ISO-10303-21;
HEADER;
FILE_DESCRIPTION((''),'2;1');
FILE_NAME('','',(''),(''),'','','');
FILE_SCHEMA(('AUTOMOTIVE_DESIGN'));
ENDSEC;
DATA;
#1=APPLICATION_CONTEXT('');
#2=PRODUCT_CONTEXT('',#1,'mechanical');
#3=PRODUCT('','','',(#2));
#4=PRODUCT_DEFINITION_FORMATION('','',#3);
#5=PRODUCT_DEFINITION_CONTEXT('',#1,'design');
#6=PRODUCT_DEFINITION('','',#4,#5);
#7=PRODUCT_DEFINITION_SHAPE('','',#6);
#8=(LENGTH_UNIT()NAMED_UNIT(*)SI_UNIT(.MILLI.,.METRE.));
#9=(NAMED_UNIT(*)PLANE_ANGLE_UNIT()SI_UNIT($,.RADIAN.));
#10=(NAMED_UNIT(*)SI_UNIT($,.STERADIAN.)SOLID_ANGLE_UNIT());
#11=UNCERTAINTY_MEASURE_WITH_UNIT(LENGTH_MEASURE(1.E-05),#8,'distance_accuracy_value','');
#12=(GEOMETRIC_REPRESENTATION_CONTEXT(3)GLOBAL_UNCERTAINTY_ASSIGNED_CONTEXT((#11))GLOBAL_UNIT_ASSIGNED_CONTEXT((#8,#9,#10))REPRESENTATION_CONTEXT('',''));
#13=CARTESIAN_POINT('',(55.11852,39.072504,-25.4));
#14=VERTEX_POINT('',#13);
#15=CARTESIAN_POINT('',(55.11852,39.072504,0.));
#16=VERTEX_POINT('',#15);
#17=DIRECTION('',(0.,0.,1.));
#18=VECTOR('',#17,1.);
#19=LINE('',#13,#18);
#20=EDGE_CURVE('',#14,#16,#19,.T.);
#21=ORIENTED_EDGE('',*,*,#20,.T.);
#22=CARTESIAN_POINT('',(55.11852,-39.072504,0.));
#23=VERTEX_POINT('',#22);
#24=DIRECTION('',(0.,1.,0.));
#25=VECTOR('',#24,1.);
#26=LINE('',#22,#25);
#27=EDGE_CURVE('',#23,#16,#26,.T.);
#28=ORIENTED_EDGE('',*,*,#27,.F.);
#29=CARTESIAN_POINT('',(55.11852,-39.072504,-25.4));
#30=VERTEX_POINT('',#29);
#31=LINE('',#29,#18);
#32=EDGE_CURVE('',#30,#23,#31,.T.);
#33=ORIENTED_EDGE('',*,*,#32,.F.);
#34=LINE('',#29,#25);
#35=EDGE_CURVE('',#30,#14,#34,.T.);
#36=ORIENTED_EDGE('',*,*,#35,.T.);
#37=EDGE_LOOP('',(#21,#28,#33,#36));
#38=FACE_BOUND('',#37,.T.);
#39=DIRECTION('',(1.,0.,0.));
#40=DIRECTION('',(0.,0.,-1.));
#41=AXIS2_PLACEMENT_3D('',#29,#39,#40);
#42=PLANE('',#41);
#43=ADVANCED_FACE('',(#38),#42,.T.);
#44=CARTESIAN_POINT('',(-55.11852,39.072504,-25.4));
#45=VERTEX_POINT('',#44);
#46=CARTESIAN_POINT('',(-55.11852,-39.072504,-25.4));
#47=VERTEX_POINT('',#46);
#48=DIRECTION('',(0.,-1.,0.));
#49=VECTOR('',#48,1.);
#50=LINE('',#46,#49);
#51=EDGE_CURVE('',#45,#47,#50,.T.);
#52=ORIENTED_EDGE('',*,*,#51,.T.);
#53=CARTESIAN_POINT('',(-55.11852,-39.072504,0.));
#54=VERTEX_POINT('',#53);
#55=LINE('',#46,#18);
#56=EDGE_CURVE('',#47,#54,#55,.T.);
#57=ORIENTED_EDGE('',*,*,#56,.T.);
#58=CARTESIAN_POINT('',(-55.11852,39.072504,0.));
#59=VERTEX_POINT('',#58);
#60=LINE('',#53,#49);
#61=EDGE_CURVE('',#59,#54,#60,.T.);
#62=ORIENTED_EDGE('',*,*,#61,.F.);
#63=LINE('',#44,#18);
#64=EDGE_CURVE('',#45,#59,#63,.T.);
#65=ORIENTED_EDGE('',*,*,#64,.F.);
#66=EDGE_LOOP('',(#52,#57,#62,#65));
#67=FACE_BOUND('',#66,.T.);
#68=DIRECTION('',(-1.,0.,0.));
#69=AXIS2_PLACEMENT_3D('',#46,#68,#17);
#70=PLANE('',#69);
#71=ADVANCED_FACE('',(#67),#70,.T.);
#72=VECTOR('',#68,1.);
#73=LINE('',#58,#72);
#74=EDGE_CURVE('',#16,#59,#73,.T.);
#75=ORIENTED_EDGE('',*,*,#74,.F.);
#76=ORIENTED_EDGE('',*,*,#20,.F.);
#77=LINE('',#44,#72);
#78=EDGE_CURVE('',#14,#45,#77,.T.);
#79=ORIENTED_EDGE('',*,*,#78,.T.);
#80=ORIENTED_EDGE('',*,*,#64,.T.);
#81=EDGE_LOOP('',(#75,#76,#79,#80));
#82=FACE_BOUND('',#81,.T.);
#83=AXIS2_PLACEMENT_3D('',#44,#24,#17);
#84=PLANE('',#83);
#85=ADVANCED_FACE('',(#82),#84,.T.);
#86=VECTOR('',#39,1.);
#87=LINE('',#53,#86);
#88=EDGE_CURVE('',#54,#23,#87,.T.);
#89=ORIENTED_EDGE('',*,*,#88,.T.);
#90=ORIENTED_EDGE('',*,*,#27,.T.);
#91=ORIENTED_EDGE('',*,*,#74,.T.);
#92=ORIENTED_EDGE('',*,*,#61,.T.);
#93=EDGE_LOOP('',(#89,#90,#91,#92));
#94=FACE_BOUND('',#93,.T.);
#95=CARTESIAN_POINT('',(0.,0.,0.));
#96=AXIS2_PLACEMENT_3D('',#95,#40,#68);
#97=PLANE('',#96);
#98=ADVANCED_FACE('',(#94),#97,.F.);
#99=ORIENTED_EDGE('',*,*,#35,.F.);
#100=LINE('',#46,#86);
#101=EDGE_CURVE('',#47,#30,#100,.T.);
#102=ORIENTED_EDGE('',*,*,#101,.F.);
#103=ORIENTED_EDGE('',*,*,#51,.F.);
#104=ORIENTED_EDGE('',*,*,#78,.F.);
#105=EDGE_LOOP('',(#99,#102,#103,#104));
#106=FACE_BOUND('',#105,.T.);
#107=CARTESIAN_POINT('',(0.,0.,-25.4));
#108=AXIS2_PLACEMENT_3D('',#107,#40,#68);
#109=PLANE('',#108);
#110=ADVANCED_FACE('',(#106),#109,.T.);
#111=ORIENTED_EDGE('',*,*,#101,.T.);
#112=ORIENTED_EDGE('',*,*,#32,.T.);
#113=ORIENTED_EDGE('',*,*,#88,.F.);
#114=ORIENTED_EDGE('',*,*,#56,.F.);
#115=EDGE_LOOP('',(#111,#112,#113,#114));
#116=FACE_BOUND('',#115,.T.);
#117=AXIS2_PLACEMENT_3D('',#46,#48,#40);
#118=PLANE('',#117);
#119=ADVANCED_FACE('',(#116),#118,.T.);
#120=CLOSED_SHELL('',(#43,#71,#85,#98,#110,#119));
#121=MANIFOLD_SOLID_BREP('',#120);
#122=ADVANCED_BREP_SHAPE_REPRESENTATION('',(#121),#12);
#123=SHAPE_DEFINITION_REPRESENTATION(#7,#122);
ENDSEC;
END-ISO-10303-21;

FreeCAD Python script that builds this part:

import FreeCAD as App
import Part
import Sketcher
Q = App.Units.Quantity

doc = App.newDocument("Part")
body = doc.addObject("PartDesign::Body", "Body")

# Sketch on XY plane
sketch1 = doc.addObject("Sketcher::SketchObject", "Sketch")
body.addObject(sketch1)
sketch1.AttachmentSupport = (doc.XY_Plane, [""])
sketch1.MapMode = "FlatFace"
sketch1.addGeometry([
    Part.LineSegment(App.Vector(-55, 39, 0), App.Vector(-55, -39, 0)),
    Part.LineSegment(App.Vector(-55, -39, 0), App.Vector(55, -39, 0)),
    Part.LineSegment(App.Vector(55, -39, 0), App.Vector(55, 39, 0)),
    Part.LineSegment(App.Vector(55, 39, 0), App.Vector(-55, 39, 0)),
], False)
sketch1.addConstraint([
    Sketcher.Constraint("Coincident", 0, 2, 1, 1),
    Sketcher.Constraint("Coincident", 1, 2, 2, 1),
    Sketcher.Constraint("Coincident", 2, 2, 3, 1),
    Sketcher.Constraint("Coincident", 3, 2, 0, 1),
    Sketcher.Constraint("Vertical", 0),
    Sketcher.Constraint("Horizontal", 1),
    Sketcher.Constraint("Vertical", 2),
    Sketcher.Constraint("Horizontal", 3),
    Sketcher.Constraint("Symmetric", 0, 2, 2, 2, -1, 1),
    Sketcher.Constraint("DistanceX", 1, 1, 1, 2, Q("110.23704 mm")),
    Sketcher.Constraint("DistanceY", 0, 2, 0, 1, Q("78.145007 mm")),
])
pad1 = doc.addObject("PartDesign::Pad", "Pad")
body.addObject(pad1)
pad1.Profile = sketch1
pad1.Length = Q("1 in")
pad1.Reversed = True

doc.recompute()
